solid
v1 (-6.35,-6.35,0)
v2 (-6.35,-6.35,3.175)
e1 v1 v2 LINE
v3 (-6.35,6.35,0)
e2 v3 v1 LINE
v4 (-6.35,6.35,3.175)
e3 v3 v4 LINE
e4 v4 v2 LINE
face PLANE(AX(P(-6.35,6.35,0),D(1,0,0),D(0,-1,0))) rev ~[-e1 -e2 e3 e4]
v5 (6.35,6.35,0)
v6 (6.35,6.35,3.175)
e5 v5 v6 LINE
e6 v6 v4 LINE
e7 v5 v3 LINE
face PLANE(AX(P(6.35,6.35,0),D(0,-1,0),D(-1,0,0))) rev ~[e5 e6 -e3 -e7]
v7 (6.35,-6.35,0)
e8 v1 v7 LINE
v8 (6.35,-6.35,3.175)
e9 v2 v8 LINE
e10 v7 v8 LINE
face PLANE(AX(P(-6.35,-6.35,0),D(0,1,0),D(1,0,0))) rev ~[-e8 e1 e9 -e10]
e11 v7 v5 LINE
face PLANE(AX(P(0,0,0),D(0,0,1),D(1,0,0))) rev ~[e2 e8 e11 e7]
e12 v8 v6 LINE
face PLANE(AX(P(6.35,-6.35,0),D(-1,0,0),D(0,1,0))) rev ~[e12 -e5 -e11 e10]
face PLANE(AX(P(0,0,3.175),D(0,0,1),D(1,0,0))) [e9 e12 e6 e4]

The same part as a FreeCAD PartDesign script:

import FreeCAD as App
import Part
import Sketcher
Q = App.Units.Quantity


def add_polygon(sketch, points):
    """Adds a closed chain of lines whose ends are joined by coincident constraints."""
    first, n = sketch.GeometryCount, len(points)
    for a, b in zip(points, points[1:] + points[:1]):
        sketch.addGeometry(Part.LineSegment(App.Vector(*a, 0), App.Vector(*b, 0)), False)
    for i in range(n):
        sketch.addConstraint(Sketcher.Constraint("Coincident", first + i, 2, first + (i + 1) % n, 1))

doc = App.newDocument("Part")
body = doc.addObject("PartDesign::Body", "Body")

sketch1 = doc.addObject("Sketcher::SketchObject", "Sketch")
body.addObject(sketch1)
sketch1.AttachmentSupport = (doc.XY_Plane, [""])
sketch1.MapMode = "FlatFace"
add_polygon(sketch1, [(6, -6), (6, 6), (-6, 6), (-6, -6)])
sketch1.addConstraint([
    Sketcher.Constraint("Vertical", 0),
    Sketcher.Constraint("Horizontal", 1),
    Sketcher.Constraint("Vertical", 2),
    Sketcher.Constraint("Horizontal", 3),
    Sketcher.Constraint("Symmetric", 0, 2, 2, 2, -1, 1),
    Sketcher.Constraint("Equal", 3, 0),
    Sketcher.Constraint("DistanceX", 1, 2, 1, 1, Q("0.5 in")),
])
pad1 = doc.addObject("PartDesign::Pad", "Pad")
body.addObject(pad1)
pad1.Profile = sketch1
pad1.Length = Q("0.125 in")

doc.recompute()
